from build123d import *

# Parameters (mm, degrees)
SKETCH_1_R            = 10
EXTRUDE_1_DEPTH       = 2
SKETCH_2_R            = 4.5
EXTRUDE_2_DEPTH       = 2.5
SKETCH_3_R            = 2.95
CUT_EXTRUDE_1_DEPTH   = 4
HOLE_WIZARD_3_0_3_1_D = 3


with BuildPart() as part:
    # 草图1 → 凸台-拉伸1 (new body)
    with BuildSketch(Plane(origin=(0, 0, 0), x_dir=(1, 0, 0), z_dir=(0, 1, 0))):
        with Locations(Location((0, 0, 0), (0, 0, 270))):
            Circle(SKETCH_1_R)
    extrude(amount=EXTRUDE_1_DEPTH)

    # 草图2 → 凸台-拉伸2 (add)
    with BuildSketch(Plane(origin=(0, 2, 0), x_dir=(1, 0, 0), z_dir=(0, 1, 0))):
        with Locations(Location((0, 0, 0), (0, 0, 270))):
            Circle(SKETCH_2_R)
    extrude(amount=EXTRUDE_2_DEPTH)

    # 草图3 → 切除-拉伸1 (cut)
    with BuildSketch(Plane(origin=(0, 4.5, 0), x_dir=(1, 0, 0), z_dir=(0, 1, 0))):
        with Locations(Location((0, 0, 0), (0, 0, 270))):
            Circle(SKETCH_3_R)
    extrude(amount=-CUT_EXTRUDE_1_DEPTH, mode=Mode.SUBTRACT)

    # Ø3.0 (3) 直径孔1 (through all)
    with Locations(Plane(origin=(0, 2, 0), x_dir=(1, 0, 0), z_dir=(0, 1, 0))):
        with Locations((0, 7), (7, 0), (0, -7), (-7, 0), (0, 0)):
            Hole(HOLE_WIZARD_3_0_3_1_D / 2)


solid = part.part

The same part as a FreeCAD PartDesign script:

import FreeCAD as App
import Part
import Sketcher

V = App.Vector

doc = App.newDocument("Part")
params = doc.addObject("Spreadsheet::Sheet", "Params")
for row, (alias, value) in enumerate([
    ("sketch1_diameter", "20 mm"),
    ("pad1_length", "2 mm"),
    ("sketch2_diameter", "9 mm"),
    ("pad2_length", "2.5 mm"),
    ("sketch3_diameter", "5.9 mm"),
    ("pocket1_length", "4 mm"),
    ("sketch4_diameter", "3 mm"),
    ("hole_diameter", "3 mm"),
], start=1):
    params.set(f"A{row}", alias)
    params.set(f"B{row}", "=" + value)
    params.setAlias(f"B{row}", alias)

body = doc.addObject("PartDesign::Body", "Body")

sketch1 = body.newObject("Sketcher::SketchObject", "Sketch")
sketch1.AttachmentSupport = (doc.getObject("XZ_Plane"), [""])
sketch1.MapMode = "FlatFace"
sketch1.addGeometry(Part.Circle(V(0, 0, 0), V(0, 0, 1), 10), False)
sketch1.addConstraint([
    Sketcher.Constraint("Coincident", 0, 3, -1, 1),
    Sketcher.Constraint("Diameter", 0, 20.0),
])
sketch1.setExpression("Constraints[1]", "Params.sketch1_diameter")
pad1 = body.newObject("PartDesign::Pad", "Pad")
pad1.Profile = sketch1
pad1.setExpression("Length", "Params.pad1_length")
pad1.Reversed = True

sketch2 = body.newObject("Sketcher::SketchObject", "Sketch001")
sketch2.AttachmentSupport = (doc.getObject("XZ_Plane"), [""])
sketch2.MapMode = "FlatFace"
sketch2.AttachmentOffset = App.Placement(V(0, 0, -2), App.Rotation())
sketch2.addGeometry(Part.Circle(V(0, 0, 0), V(0, 0, 1), 4.5), False)
sketch2.addConstraint([
    Sketcher.Constraint("Coincident", 0, 3, -1, 1),
    Sketcher.Constraint("Diameter", 0, 9.0),
])
sketch2.setExpression("Constraints[1]", "Params.sketch2_diameter")
pad2 = body.newObject("PartDesign::Pad", "Pad001")
pad2.Profile = sketch2
pad2.setExpression("Length", "Params.pad2_length")
pad2.Reversed = True

sketch3 = body.newObject("Sketcher::SketchObject", "Sketch002")
sketch3.AttachmentSupport = (doc.getObject("XZ_Plane"), [""])
sketch3.MapMode = "FlatFace"
sketch3.AttachmentOffset = App.Placement(V(0, 0, -4.5), App.Rotation())
sketch3.addGeometry(Part.Circle(V(0, 0, 0), V(0, 0, 1), 3), False)
sketch3.addConstraint([
    Sketcher.Constraint("Coincident", 0, 3, -1, 1),
    Sketcher.Constraint("Diameter", 0, 5.9),
])
sketch3.setExpression("Constraints[1]", "Params.sketch3_diameter")
pocket1 = body.newObject("PartDesign::Pocket", "Pocket")
pocket1.Profile = sketch3
pocket1.setExpression("Length", "Params.pocket1_length")
pocket1.Reversed = True

sketch4 = body.newObject("Sketcher::SketchObject", "Sketch003")
sketch4.AttachmentSupport = (doc.getObject("XZ_Plane"), [""])
sketch4.MapMode = "FlatFace"
sketch4.AttachmentOffset = App.Placement(V(0, 0, -2), App.Rotation())
sketch4.addGeometry([
    Part.Circle(V(0, -7, 0), V(0, 0, 1), 1.5),
    Part.Circle(V(7, 0, 0), V(0, 0, 1), 1.5),
    Part.Circle(V(0, 7, 0), V(0, 0, 1), 1.5),
    Part.Circle(V(-7, 0, 0), V(0, 0, 1), 1.5),
    Part.Circle(V(0, 0, 0), V(0, 0, 1), 1.5),
], False)
sketch4.addConstraint([
    Sketcher.Constraint("Coincident", 4, 3, -1, 1),
    Sketcher.Constraint("Equal", 0, 1),
    Sketcher.Constraint("Equal", 1, 2),
    Sketcher.Constraint("Equal", 2, 3),
    Sketcher.Constraint("Equal", 3, 4),
    Sketcher.Constraint("Symmetric", 0, 3, 2, 3, -1, 1),
    Sketcher.Constraint("Symmetric", 1, 3, 3, 3, -1, 1),
    Sketcher.Constraint("PointOnObject", 0, 3, -2),
    Sketcher.Constraint("PointOnObject", 1, 3, -1),
    Sketcher.Constraint("Diameter", 0, 3.0),
    Sketcher.Constraint("DistanceY", 0, 3, -1, 1, 7.0),
    Sketcher.Constraint("DistanceX", -1, 1, 1, 3, 7.0),
])
sketch4.setExpression("Constraints[9]", "Params.sketch4_diameter")
doc.recompute()
hole = body.newObject("PartDesign::Hole", "Hole")
hole.Profile = sketch4
hole.ThreadType = "None"
hole.setExpression("Diameter", "Params.hole_diameter")
hole.DepthType = "ThroughAll"
hole.Reversed = True

doc.recompute()
